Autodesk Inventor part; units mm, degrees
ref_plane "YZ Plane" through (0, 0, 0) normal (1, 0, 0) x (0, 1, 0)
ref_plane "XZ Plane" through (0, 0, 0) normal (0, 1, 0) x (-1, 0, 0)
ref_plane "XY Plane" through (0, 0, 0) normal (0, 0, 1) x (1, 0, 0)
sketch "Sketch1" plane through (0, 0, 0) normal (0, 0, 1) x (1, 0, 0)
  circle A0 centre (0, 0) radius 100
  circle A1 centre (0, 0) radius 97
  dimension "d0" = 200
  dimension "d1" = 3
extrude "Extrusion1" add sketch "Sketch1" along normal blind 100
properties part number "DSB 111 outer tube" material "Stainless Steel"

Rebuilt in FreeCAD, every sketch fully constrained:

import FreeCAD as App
import Part
import Sketcher
from FreeCAD import Vector
Q = App.Units.Quantity

doc = App.newDocument("Part")
body = doc.addObject("PartDesign::Body", "Body")

sketch1 = body.newObject("Sketcher::SketchObject", "Sketch")
sketch1.AttachmentSupport = (doc.getObject("XY_Plane"), [""])
sketch1.MapMode = "FlatFace"
sketch1.addGeometry(Part.Circle(Vector(0, 0, 0), Vector(0, 0, 1), 100), False)
sketch1.addGeometry(Part.Circle(Vector(0, 0, 0), Vector(0, 0, 1), 97), False)
sketch1.addConstraint(Sketcher.Constraint("Coincident", 0, 3, -1, 1))
sketch1.addConstraint(Sketcher.Constraint("Coincident", 1, 3, -1, 1))
sketch1.addConstraint(Sketcher.Constraint("Diameter", 0, Q("200 mm")))
sketch1.addConstraint(Sketcher.Constraint("Diameter", 1, Q("194 mm")))
pad1 = body.newObject("PartDesign::Pad", "Pad")
pad1.Profile = sketch1
pad1.Length = 100

doc.recompute()
